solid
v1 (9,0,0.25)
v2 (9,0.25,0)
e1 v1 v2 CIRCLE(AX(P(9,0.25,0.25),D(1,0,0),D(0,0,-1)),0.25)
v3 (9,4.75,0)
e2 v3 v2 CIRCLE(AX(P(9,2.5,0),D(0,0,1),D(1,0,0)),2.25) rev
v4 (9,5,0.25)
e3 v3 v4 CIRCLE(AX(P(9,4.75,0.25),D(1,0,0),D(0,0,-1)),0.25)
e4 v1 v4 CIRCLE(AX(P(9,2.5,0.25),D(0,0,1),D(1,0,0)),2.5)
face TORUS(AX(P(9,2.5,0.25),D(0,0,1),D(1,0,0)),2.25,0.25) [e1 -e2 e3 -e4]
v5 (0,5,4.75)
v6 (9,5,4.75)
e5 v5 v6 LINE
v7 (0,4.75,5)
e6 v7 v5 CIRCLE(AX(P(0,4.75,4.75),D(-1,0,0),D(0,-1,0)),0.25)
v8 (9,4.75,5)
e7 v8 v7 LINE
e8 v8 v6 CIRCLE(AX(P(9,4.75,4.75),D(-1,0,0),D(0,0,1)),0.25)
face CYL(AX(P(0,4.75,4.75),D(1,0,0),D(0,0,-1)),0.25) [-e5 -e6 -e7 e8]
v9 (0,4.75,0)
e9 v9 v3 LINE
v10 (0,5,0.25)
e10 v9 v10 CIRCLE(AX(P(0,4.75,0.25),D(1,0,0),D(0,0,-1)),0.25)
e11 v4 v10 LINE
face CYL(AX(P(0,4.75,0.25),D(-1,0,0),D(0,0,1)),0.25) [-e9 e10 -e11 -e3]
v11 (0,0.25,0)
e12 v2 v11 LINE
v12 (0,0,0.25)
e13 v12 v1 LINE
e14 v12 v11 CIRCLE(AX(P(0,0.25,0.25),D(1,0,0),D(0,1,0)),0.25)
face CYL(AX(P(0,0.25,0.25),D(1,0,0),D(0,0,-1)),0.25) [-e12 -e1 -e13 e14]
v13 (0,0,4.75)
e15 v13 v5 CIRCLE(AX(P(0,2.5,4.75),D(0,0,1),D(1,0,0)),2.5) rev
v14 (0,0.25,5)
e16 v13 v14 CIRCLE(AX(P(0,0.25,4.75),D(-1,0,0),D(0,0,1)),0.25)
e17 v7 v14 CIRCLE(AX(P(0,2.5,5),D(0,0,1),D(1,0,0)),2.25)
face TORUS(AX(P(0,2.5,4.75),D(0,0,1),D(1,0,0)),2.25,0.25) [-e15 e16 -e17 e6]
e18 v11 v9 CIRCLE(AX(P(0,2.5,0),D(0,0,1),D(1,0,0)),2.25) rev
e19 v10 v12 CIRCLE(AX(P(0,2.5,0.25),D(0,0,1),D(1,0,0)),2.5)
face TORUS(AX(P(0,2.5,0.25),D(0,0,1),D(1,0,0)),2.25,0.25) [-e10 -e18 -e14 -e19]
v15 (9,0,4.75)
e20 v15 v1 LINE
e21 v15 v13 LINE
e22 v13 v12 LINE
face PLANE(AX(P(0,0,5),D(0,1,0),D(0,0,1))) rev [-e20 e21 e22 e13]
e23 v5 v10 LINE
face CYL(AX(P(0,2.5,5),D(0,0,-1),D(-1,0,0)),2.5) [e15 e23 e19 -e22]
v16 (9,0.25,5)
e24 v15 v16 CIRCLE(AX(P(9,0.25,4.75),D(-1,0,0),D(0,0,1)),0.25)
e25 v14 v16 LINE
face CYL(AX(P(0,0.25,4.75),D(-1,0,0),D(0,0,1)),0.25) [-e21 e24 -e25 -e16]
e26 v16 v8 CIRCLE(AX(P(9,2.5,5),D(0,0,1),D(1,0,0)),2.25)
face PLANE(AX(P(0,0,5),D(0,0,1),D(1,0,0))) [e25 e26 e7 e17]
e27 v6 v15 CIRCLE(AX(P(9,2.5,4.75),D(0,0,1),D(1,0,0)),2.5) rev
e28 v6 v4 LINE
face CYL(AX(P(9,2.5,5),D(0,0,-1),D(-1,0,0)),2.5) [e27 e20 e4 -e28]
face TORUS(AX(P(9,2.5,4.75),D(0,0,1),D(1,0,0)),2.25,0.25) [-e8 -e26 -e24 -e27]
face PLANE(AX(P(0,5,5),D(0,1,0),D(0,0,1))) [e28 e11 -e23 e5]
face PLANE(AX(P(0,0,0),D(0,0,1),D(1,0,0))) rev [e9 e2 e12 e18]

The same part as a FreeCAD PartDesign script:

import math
import FreeCAD as App
import Part
import Sketcher

V = App.Vector


def edges_at(feature, points):
    """Names of the edges that pass closest to the given points."""
    edges = feature.Shape.Edges
    near = lambda p: min(range(len(edges)), key=lambda i: edges[i].distToShape(Part.Vertex(*p))[0])
    return sorted({f"Edge{near(p) + 1}" for p in points})

doc = App.newDocument("Part")
body = doc.addObject("PartDesign::Body", "Body")

# Sketch on XY plane
sketch1 = doc.addObject("Sketcher::SketchObject", "Sketch")
body.addObject(sketch1)
sketch1.AttachmentSupport = (doc.XY_Plane, [""])
sketch1.MapMode = "FlatFace"
sketch1.addGeometry(Part.LineSegment(V(0, 0, 0), V(9, 0, 0)), False)
sketch1.addGeometry(Part.ArcOfCircle(Part.Circle(V(9, 2.5, 0), V(0, 0, 1), 2.5), math.radians(-90), math.radians(90)), False)
sketch1.addGeometry(Part.LineSegment(V(9, 5, 0), V(0, 5, 0)), False)
sketch1.addGeometry(Part.ArcOfCircle(Part.Circle(V(0, 2.5, 0), V(0, 0, 1), 2.5), math.radians(90), math.radians(270)), False)
sketch1.addConstraint(Sketcher.Constraint("Tangent", 0, 2, 1, 1))
sketch1.addConstraint(Sketcher.Constraint("Tangent", 1, 2, 2, 1))
sketch1.addConstraint(Sketcher.Constraint("Tangent", 2, 2, 3, 1))
sketch1.addConstraint(Sketcher.Constraint("Tangent", 3, 2, 0, 1))
sketch1.addConstraint(Sketcher.Constraint("Horizontal", 0))
sketch1.addConstraint(Sketcher.Constraint("Horizontal", 2))
sketch1.addConstraint(Sketcher.Constraint("Coincident", 3, 2, -1, 1))
sketch1.addConstraint(Sketcher.Constraint("Radius", 1, 2.5))
sketch1.addConstraint(Sketcher.Constraint("DistanceX", 0, 1, 0, 2, 9.0))
pad1 = doc.addObject("PartDesign::Pad", "Pad")
body.addObject(pad1)
pad1.Profile = sketch1
pad1.Length = 5
doc.recompute()

fillet = doc.addObject("PartDesign::Fillet", "Fillet")
body.addObject(fillet)
fillet.Base = (pad1, edges_at(pad1, [
    (11.5, 2.5, 5),
    (4.5, 5, 5),
    (-2.5, 2.5, 5),
    (-2.5, 2.5, 0),
    (4.5, 0, 5),
    (4.5, 5, 0),
    (11.5, 2.5, 0),
    (4.5, 0, 0),
]))
fillet.Radius = 0.25

doc.recompute()
